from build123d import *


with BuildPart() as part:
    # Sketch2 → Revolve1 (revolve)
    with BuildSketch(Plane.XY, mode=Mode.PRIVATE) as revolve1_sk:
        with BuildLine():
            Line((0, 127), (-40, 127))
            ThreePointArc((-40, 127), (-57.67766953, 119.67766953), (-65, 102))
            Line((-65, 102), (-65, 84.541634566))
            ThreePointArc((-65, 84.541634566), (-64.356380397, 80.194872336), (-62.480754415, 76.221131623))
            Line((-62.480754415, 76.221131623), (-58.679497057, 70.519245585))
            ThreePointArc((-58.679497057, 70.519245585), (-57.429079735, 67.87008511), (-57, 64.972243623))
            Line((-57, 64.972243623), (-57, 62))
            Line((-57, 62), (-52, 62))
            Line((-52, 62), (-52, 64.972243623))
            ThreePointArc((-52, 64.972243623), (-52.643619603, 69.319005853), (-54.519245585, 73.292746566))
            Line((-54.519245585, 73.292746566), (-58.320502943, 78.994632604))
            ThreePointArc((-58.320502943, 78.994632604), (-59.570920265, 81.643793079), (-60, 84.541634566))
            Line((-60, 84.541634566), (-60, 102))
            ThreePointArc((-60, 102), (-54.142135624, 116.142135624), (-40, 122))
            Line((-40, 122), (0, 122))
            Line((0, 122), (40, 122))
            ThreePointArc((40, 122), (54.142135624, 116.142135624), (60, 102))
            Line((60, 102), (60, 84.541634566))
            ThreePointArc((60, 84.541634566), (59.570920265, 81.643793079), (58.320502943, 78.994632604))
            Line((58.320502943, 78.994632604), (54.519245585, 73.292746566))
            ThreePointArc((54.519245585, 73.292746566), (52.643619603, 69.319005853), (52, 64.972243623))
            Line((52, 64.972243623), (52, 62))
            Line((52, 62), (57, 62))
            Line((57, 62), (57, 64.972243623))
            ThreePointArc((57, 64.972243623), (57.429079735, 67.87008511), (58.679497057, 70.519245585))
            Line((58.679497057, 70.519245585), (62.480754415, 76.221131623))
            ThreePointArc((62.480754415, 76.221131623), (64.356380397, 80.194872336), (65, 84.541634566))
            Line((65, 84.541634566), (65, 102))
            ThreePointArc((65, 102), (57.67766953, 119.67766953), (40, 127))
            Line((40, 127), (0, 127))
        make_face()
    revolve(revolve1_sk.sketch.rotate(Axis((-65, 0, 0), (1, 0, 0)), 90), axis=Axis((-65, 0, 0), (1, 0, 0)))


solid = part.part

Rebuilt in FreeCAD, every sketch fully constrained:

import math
import FreeCAD as App
import Part
import Sketcher

V = App.Vector

doc = App.newDocument("Part")
params = doc.addObject("Spreadsheet::Sheet", "Params")
for row, (alias, value) in enumerate([
    ("sketch1_radius", "25 mm"),
    ("sketch1_radius2", "15 mm"),
    ("sketch1_radius3", "10 mm"),
    ("sketch1_width", "80 mm"),
    ("revolution_angle", "360 deg"),
], start=1):
    params.set(f"A{row}", alias)
    params.set(f"B{row}", "=" + value)
    params.setAlias(f"B{row}", alias)

body = doc.addObject("PartDesign::Body", "Body")

# Sketch on XY plane
sketch1 = doc.addObject("Sketcher::SketchObject", "Sketch")
body.addObject(sketch1)
sketch1.AttachmentSupport = (doc.XY_Plane, [""])
sketch1.MapMode = "FlatFace"
sketch1.addGeometry([
    Part.ArcOfCircle(Part.Circle(V(-40, 102, 0), V(0, 0, 1), 25), math.radians(90), math.radians(180)),  # 0
    Part.LineSegment(V(-65, 102, 0), V(-65, 84.5, 0)),  # 1
    Part.ArcOfCircle(Part.Circle(V(-50, 84.5, 0), V(0, 0, 1), 15), math.radians(-180), math.radians(-146)),  # 2
    Part.LineSegment(V(-62.5, 76.2, 0), V(-58.7, 70.5, 0)),  # 3
    Part.ArcOfCircle(Part.Circle(V(-67, 65, 0), V(0, 0, 1), 10), math.radians(0), math.radians(34)),  # 4
    Part.LineSegment(V(-57, 65, 0), V(-57, 62, 0)),  # 5
    Part.LineSegment(V(-57, 62, 0), V(-52, 62, 0)),  # 6
    Part.LineSegment(V(-52, 62, 0), V(-52, 65, 0)),  # 7
    Part.ArcOfCircle(Part.Circle(V(-67, 65, 0), V(0, 0, 1), 15), math.radians(0), math.radians(34)),  # 8
    Part.LineSegment(V(-54.5, 73.3, 0), V(-58.3, 79, 0)),  # 9
    Part.ArcOfCircle(Part.Circle(V(-50, 84.5, 0), V(0, 0, 1), 10), math.radians(180), math.radians(214)),  # 10
    Part.LineSegment(V(-60, 84.5, 0), V(-60, 102, 0)),  # 11
    Part.ArcOfCircle(Part.Circle(V(-40, 102, 0), V(0, 0, 1), 20), math.radians(90), math.radians(180)),  # 12
    Part.LineSegment(V(-40, 122, 0), V(40, 122, 0)),  # 13
    Part.ArcOfCircle(Part.Circle(V(40, 102, 0), V(0, 0, 1), 20), math.radians(0), math.radians(90)),  # 14
    Part.LineSegment(V(60, 102, 0), V(60, 84.5, 0)),  # 15
    Part.ArcOfCircle(Part.Circle(V(50, 84.5, 0), V(0, 0, 1), 10), math.radians(-34), math.radians(0)),  # 16
    Part.LineSegment(V(58.3, 79, 0), V(54.5, 73.3, 0)),  # 17
    Part.ArcOfCircle(Part.Circle(V(67, 65, 0), V(0, 0, 1), 15), math.radians(146), math.radians(180)),  # 18
    Part.LineSegment(V(52, 65, 0), V(52, 62, 0)),  # 19
    Part.LineSegment(V(52, 62, 0), V(57, 62, 0)),  # 20
    Part.LineSegment(V(57, 62, 0), V(57, 65, 0)),  # 21
    Part.ArcOfCircle(Part.Circle(V(67, 65, 0), V(0, 0, 1), 10), math.radians(146), math.radians(180)),  # 22
    Part.LineSegment(V(58.7, 70.5, 0), V(62.5, 76.2, 0)),  # 23
    Part.ArcOfCircle(Part.Circle(V(50, 84.5, 0), V(0, 0, 1), 15), math.radians(-34), math.radians(0)),  # 24
    Part.LineSegment(V(65, 84.5, 0), V(65, 102, 0)),  # 25
    Part.ArcOfCircle(Part.Circle(V(40, 102, 0), V(0, 0, 1), 25), math.radians(0), math.radians(90)),  # 26
    Part.LineSegment(V(40, 127, 0), V(-40, 127, 0)),  # 27
], False)
sketch1.addConstraint([
    Sketcher.Constraint("Tangent", 0, 2, 1, 1),
    Sketcher.Constraint("Tangent", 1, 2, 2, 1),
    Sketcher.Constraint("Tangent", 2, 2, 3, 1),
    Sketcher.Constraint("Tangent", 3, 2, 4, 2),
    Sketcher.Constraint("Tangent", 4, 1, 5, 1),
    Sketcher.Constraint("Coincident", 5, 2, 6, 1),
    Sketcher.Constraint("Coincident", 6, 2, 7, 1),
    Sketcher.Constraint("Tangent", 7, 2, 8, 1),
    Sketcher.Constraint("Tangent", 8, 2, 9, 1),
    Sketcher.Constraint("Tangent", 9, 2, 10, 2),
    Sketcher.Constraint("Tangent", 10, 1, 11, 1),
    Sketcher.Constraint("Tangent", 11, 2, 12, 2),
    Sketcher.Constraint("Tangent", 12, 1, 13, 1),
    Sketcher.Constraint("Tangent", 13, 2, 14, 2),
    Sketcher.Constraint("Tangent", 14, 1, 15, 1),
    Sketcher.Constraint("Tangent", 15, 2, 16, 2),
    Sketcher.Constraint("Tangent", 16, 1, 17, 1),
    Sketcher.Constraint("Tangent", 17, 2, 18, 1),
    Sketcher.Constraint("Tangent", 18, 2, 19, 1),
    Sketcher.Constraint("Coincident", 19, 2, 20, 1),
    Sketcher.Constraint("Coincident", 20, 2, 21, 1),
    Sketcher.Constraint("Tangent", 21, 2, 22, 2),
    Sketcher.Constraint("Tangent", 22, 1, 23, 1),
    Sketcher.Constraint("Tangent", 23, 2, 24, 1),
    Sketcher.Constraint("Tangent", 24, 2, 25, 1),
    Sketcher.Constraint("Tangent", 25, 2, 26, 1),
    Sketcher.Constraint("Tangent", 26, 2, 27, 1),
    Sketcher.Constraint("Tangent", 27, 2, 0, 1),
    Sketcher.Constraint("Vertical", 1),
    Sketcher.Constraint("Vertical", 5),
    Sketcher.Constraint("Horizontal", 6),
    Sketcher.Constraint("Vertical", 7),
    Sketcher.Constraint("Vertical", 11),
    Sketcher.Constraint("Horizontal", 13),
    Sketcher.Constraint("Vertical", 15),
    Sketcher.Constraint("Vertical", 19),
    Sketcher.Constraint("Horizontal", 20),
    Sketcher.Constraint("Vertical", 21),
    Sketcher.Constraint("Vertical", 25),
    Sketcher.Constraint("Horizontal", 27),
    Sketcher.Constraint("Coincident", 8, 3, 4, 3),
    Sketcher.Constraint("Coincident", 10, 3, 2, 3),
    Sketcher.Constraint("Coincident", 12, 3, 0, 3),
    Sketcher.Constraint("Coincident", 22, 3, 18, 3),
    Sketcher.Constraint("Coincident", 24, 3, 16, 3),
    Sketcher.Constraint("Coincident", 26, 3, 14, 3),
    Sketcher.Constraint("Equal", 2, 8),
    Sketcher.Constraint("Equal", 4, 10),
    Sketcher.Constraint("Equal", 12, 14),
    Sketcher.Constraint("Equal", 10, 16),
    Sketcher.Constraint("Equal", 8, 18),
    Sketcher.Constraint("Equal", 16, 22),
    Sketcher.Constraint("Symmetric", 2, 3, 16, 3, -2),
    Sketcher.Constraint("Symmetric", 4, 3, 18, 3, -2),
    Sketcher.Constraint("Horizontal", 6, 2, 19, 2),
    Sketcher.Constraint("Radius", 0, 25.0),
    Sketcher.Constraint("Radius", 2, 15.0),
    Sketcher.Constraint("Radius", 4, 10.0),
    Sketcher.Constraint("DistanceX", 13, 1, 13, 2, 80.0),
    Sketcher.Constraint("DistanceY", -1, 1, 0, 3, 102.0),
    Sketcher.Constraint("DistanceX", 4, 3, -1, 1, 67.0),
    Sketcher.Constraint("DistanceY", -1, 1, 5, 2, 62.0),
    Sketcher.Constraint("DistanceY", 4, 3, 3, 2, 5.547002),
    Sketcher.Constraint("DistanceY", 1, 2, 1, 1, 17.458365),
])
sketch1.setExpression("Constraints[55]", "Params.sketch1_radius")
sketch1.setExpression("Constraints[56]", "Params.sketch1_radius2")
sketch1.setExpression("Constraints[57]", "Params.sketch1_radius3")
sketch1.setExpression("Constraints[58]", "Params.sketch1_width")
revolution = doc.addObject("PartDesign::Revolution", "Revolution")
body.addObject(revolution)
revolution.Profile = sketch1
revolution.ReferenceAxis = (sketch1, ["H_Axis"])
revolution.setExpression("Angle", "Params.revolution_angle")

doc.recompute()
